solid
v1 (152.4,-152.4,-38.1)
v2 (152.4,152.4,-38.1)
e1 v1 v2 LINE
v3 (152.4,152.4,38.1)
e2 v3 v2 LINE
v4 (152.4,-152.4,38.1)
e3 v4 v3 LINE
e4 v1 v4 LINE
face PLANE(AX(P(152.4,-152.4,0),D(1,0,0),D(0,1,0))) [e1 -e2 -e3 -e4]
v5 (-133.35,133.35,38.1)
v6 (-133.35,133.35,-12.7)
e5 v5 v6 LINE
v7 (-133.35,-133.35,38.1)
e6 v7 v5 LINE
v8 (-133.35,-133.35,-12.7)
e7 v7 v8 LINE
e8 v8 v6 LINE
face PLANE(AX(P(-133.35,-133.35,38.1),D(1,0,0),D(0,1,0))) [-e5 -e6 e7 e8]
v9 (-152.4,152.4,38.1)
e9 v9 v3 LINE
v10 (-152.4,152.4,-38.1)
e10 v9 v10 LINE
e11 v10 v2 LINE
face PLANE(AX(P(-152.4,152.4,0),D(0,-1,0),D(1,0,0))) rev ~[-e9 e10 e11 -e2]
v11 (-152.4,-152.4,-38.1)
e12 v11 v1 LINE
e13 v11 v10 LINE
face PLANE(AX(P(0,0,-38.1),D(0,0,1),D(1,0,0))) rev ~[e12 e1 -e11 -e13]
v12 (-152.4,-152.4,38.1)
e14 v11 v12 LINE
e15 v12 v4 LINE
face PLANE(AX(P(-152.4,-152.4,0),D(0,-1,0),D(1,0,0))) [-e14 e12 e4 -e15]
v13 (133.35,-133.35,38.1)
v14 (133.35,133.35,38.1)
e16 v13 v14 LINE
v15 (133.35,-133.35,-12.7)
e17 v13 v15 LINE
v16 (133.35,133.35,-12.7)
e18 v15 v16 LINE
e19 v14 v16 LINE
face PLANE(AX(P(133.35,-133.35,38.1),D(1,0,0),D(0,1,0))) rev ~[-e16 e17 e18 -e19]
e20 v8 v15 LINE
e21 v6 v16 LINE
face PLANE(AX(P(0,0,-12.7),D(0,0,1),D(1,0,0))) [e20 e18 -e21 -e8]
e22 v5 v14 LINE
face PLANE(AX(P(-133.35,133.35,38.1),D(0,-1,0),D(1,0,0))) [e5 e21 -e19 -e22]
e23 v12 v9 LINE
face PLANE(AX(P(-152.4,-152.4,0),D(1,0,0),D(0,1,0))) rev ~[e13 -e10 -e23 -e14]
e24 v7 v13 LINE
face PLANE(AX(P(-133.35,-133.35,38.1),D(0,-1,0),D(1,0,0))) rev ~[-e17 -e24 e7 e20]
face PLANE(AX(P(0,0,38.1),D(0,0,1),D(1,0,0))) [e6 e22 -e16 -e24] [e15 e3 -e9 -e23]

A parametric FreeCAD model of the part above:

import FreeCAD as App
import Part
import Sketcher
from FreeCAD import Vector
Q = App.Units.Quantity


def add_polygon(sketch, points):
    """Adds a closed chain of lines whose ends are joined by coincident constraints."""
    first, n = sketch.GeometryCount, len(points)
    for a, b in zip(points, points[1:] + points[:1]):
        sketch.addGeometry(Part.LineSegment(App.Vector(*a, 0), App.Vector(*b, 0)), False)
    for i in range(n):
        sketch.addConstraint(Sketcher.Constraint("Coincident", first + i, 2, first + (i + 1) % n, 1))

doc = App.newDocument("Part")
body = doc.addObject("PartDesign::Body", "Body")

# Sketch on XY plane
sketch1 = body.newObject("Sketcher::SketchObject", "Sketch")
sketch1.AttachmentSupport = (doc.getObject("XY_Plane"), [""])
sketch1.MapMode = "FlatFace"
add_polygon(sketch1, [(-152, 152), (-152, -152), (152, -152), (152, 152)])  # lines 0-3
sketch1.addConstraint([
    Sketcher.Constraint("Vertical", 0),
    Sketcher.Constraint("Horizontal", 1),
    Sketcher.Constraint("Vertical", 2),
    Sketcher.Constraint("Horizontal", 3),
    Sketcher.Constraint("Symmetric", 0, 2, 2, 2, -1, 1),
    Sketcher.Constraint("Equal", 3, 0),
    Sketcher.Constraint("DistanceX", 1, 1, 1, 2, Q("12 in")),
])
pad1 = body.newObject("PartDesign::Pad", "Pad")
pad1.Profile = sketch1
pad1.Length = Q("3 in")
pad1.Midplane = True

# Sketch on XY plane
sketch2 = body.newObject("Sketcher::SketchObject", "Sketch001")
sketch2.AttachmentSupport = (doc.getObject("XY_Plane"), [""])
sketch2.MapMode = "FlatFace"
sketch2.AttachmentOffset = App.Placement(Vector(0, 0, 1.5 * 25.4), App.Rotation())
add_polygon(sketch2, [(-133, 133), (-133, -133), (133, -133), (133, 133)])  # lines 0-3
sketch2.addConstraint([
    Sketcher.Constraint("Vertical", 0),
    Sketcher.Constraint("Horizontal", 1),
    Sketcher.Constraint("Vertical", 2),
    Sketcher.Constraint("Horizontal", 3),
    Sketcher.Constraint("Symmetric", 0, 2, 2, 2, -1, 1),
    Sketcher.Constraint("Equal", 3, 0),
    Sketcher.Constraint("DistanceX", 1, 1, 1, 2, Q("10.5 in")),
])
pocket1 = body.newObject("PartDesign::Pocket", "Pocket")
pocket1.Profile = sketch2
pocket1.Length = Q("2 in")

doc.recompute()
